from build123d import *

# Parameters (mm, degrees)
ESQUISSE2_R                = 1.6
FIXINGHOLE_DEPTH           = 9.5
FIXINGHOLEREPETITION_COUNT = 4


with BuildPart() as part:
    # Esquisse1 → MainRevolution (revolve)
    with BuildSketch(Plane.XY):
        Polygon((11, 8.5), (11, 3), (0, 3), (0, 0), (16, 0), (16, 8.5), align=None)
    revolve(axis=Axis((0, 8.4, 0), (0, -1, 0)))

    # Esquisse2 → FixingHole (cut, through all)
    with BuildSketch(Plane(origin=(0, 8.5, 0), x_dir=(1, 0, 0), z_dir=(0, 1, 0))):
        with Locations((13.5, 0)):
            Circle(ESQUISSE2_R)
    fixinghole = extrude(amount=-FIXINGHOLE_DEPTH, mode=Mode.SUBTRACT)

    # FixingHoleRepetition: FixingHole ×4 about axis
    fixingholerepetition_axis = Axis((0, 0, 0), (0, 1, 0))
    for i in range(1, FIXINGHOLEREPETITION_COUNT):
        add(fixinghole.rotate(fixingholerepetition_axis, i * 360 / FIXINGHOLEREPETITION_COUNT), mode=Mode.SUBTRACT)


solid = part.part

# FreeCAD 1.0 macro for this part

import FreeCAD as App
import Part
import Sketcher
from FreeCAD import Vector


def add_polygon(sketch, points):
    """Adds a closed chain of lines whose ends are joined by coincident constraints."""
    first, n = sketch.GeometryCount, len(points)
    for a, b in zip(points, points[1:] + points[:1]):
        sketch.addGeometry(Part.LineSegment(App.Vector(*a, 0), App.Vector(*b, 0)), False)
    for i in range(n):
        sketch.addConstraint(Sketcher.Constraint("Coincident", first + i, 2, first + (i + 1) % n, 1))

doc = App.newDocument("Part")
body = doc.addObject("PartDesign::Body", "Body")

# Sketch on XY plane
sketch1 = body.newObject("Sketcher::SketchObject", "Sketch")
sketch1.AttachmentSupport = (doc.getObject("XY_Plane"), [""])
sketch1.MapMode = "FlatFace"
add_polygon(sketch1, [(11, 8.5), (11, 3), (0, 3), (0, 0), (16, 0), (16, 8.5)])  # lines 0-5
sketch1.addConstraint([
    Sketcher.Constraint("Vertical", 0),
    Sketcher.Constraint("Horizontal", 1),
    Sketcher.Constraint("Vertical", 2),
    Sketcher.Constraint("Horizontal", 3),
    Sketcher.Constraint("Vertical", 4),
    Sketcher.Constraint("Horizontal", 5),
    Sketcher.Constraint("Coincident", 2, 2, -1, 1),
    Sketcher.Constraint("DistanceX", 1, 2, 1, 1, 11.0),
    Sketcher.Constraint("DistanceX", 3, 1, 3, 2, 16.0),
    Sketcher.Constraint("DistanceY", 2, 2, 2, 1, 3.0),
    Sketcher.Constraint("DistanceY", 0, 2, 0, 1, 5.5),
])
revolution = body.newObject("PartDesign::Revolution", "Revolution")
revolution.Profile = sketch1
revolution.ReferenceAxis = (sketch1, ["V_Axis"])
revolution.Angle = 360

# Sketch on XZ plane
sketch2 = body.newObject("Sketcher::SketchObject", "Sketch001")
sketch2.AttachmentSupport = (doc.getObject("XZ_Plane"), [""])
sketch2.MapMode = "FlatFace"
sketch2.AttachmentOffset = App.Placement(Vector(0, 0, -8.5), App.Rotation())
sketch2.addGeometry(Part.Circle(Vector(13.5, 0, 0), Vector(0, 0, 1), 1.6), False)
sketch2.addConstraint([
    Sketcher.Constraint("PointOnObject", 0, 3, -1),
    Sketcher.Constraint("Diameter", 0, 3.2),
    Sketcher.Constraint("DistanceX", -1, 1, 0, 3, 13.5),
])
pocket1 = body.newObject("PartDesign::Pocket", "Pocket")
pocket1.Profile = sketch2
pocket1.Type = "ThroughAll"
pocket1.Reversed = True
doc.recompute()

polarpattern = body.newObject("PartDesign::PolarPattern", "PolarPattern")
polarpattern.Originals = [pocket1]
polarpattern.Axis = (doc.getObject("Y_Axis"), [""])
polarpattern.Angle = 360
polarpattern.Occurrences = 4
body.Tip = polarpattern

doc.recompute()
